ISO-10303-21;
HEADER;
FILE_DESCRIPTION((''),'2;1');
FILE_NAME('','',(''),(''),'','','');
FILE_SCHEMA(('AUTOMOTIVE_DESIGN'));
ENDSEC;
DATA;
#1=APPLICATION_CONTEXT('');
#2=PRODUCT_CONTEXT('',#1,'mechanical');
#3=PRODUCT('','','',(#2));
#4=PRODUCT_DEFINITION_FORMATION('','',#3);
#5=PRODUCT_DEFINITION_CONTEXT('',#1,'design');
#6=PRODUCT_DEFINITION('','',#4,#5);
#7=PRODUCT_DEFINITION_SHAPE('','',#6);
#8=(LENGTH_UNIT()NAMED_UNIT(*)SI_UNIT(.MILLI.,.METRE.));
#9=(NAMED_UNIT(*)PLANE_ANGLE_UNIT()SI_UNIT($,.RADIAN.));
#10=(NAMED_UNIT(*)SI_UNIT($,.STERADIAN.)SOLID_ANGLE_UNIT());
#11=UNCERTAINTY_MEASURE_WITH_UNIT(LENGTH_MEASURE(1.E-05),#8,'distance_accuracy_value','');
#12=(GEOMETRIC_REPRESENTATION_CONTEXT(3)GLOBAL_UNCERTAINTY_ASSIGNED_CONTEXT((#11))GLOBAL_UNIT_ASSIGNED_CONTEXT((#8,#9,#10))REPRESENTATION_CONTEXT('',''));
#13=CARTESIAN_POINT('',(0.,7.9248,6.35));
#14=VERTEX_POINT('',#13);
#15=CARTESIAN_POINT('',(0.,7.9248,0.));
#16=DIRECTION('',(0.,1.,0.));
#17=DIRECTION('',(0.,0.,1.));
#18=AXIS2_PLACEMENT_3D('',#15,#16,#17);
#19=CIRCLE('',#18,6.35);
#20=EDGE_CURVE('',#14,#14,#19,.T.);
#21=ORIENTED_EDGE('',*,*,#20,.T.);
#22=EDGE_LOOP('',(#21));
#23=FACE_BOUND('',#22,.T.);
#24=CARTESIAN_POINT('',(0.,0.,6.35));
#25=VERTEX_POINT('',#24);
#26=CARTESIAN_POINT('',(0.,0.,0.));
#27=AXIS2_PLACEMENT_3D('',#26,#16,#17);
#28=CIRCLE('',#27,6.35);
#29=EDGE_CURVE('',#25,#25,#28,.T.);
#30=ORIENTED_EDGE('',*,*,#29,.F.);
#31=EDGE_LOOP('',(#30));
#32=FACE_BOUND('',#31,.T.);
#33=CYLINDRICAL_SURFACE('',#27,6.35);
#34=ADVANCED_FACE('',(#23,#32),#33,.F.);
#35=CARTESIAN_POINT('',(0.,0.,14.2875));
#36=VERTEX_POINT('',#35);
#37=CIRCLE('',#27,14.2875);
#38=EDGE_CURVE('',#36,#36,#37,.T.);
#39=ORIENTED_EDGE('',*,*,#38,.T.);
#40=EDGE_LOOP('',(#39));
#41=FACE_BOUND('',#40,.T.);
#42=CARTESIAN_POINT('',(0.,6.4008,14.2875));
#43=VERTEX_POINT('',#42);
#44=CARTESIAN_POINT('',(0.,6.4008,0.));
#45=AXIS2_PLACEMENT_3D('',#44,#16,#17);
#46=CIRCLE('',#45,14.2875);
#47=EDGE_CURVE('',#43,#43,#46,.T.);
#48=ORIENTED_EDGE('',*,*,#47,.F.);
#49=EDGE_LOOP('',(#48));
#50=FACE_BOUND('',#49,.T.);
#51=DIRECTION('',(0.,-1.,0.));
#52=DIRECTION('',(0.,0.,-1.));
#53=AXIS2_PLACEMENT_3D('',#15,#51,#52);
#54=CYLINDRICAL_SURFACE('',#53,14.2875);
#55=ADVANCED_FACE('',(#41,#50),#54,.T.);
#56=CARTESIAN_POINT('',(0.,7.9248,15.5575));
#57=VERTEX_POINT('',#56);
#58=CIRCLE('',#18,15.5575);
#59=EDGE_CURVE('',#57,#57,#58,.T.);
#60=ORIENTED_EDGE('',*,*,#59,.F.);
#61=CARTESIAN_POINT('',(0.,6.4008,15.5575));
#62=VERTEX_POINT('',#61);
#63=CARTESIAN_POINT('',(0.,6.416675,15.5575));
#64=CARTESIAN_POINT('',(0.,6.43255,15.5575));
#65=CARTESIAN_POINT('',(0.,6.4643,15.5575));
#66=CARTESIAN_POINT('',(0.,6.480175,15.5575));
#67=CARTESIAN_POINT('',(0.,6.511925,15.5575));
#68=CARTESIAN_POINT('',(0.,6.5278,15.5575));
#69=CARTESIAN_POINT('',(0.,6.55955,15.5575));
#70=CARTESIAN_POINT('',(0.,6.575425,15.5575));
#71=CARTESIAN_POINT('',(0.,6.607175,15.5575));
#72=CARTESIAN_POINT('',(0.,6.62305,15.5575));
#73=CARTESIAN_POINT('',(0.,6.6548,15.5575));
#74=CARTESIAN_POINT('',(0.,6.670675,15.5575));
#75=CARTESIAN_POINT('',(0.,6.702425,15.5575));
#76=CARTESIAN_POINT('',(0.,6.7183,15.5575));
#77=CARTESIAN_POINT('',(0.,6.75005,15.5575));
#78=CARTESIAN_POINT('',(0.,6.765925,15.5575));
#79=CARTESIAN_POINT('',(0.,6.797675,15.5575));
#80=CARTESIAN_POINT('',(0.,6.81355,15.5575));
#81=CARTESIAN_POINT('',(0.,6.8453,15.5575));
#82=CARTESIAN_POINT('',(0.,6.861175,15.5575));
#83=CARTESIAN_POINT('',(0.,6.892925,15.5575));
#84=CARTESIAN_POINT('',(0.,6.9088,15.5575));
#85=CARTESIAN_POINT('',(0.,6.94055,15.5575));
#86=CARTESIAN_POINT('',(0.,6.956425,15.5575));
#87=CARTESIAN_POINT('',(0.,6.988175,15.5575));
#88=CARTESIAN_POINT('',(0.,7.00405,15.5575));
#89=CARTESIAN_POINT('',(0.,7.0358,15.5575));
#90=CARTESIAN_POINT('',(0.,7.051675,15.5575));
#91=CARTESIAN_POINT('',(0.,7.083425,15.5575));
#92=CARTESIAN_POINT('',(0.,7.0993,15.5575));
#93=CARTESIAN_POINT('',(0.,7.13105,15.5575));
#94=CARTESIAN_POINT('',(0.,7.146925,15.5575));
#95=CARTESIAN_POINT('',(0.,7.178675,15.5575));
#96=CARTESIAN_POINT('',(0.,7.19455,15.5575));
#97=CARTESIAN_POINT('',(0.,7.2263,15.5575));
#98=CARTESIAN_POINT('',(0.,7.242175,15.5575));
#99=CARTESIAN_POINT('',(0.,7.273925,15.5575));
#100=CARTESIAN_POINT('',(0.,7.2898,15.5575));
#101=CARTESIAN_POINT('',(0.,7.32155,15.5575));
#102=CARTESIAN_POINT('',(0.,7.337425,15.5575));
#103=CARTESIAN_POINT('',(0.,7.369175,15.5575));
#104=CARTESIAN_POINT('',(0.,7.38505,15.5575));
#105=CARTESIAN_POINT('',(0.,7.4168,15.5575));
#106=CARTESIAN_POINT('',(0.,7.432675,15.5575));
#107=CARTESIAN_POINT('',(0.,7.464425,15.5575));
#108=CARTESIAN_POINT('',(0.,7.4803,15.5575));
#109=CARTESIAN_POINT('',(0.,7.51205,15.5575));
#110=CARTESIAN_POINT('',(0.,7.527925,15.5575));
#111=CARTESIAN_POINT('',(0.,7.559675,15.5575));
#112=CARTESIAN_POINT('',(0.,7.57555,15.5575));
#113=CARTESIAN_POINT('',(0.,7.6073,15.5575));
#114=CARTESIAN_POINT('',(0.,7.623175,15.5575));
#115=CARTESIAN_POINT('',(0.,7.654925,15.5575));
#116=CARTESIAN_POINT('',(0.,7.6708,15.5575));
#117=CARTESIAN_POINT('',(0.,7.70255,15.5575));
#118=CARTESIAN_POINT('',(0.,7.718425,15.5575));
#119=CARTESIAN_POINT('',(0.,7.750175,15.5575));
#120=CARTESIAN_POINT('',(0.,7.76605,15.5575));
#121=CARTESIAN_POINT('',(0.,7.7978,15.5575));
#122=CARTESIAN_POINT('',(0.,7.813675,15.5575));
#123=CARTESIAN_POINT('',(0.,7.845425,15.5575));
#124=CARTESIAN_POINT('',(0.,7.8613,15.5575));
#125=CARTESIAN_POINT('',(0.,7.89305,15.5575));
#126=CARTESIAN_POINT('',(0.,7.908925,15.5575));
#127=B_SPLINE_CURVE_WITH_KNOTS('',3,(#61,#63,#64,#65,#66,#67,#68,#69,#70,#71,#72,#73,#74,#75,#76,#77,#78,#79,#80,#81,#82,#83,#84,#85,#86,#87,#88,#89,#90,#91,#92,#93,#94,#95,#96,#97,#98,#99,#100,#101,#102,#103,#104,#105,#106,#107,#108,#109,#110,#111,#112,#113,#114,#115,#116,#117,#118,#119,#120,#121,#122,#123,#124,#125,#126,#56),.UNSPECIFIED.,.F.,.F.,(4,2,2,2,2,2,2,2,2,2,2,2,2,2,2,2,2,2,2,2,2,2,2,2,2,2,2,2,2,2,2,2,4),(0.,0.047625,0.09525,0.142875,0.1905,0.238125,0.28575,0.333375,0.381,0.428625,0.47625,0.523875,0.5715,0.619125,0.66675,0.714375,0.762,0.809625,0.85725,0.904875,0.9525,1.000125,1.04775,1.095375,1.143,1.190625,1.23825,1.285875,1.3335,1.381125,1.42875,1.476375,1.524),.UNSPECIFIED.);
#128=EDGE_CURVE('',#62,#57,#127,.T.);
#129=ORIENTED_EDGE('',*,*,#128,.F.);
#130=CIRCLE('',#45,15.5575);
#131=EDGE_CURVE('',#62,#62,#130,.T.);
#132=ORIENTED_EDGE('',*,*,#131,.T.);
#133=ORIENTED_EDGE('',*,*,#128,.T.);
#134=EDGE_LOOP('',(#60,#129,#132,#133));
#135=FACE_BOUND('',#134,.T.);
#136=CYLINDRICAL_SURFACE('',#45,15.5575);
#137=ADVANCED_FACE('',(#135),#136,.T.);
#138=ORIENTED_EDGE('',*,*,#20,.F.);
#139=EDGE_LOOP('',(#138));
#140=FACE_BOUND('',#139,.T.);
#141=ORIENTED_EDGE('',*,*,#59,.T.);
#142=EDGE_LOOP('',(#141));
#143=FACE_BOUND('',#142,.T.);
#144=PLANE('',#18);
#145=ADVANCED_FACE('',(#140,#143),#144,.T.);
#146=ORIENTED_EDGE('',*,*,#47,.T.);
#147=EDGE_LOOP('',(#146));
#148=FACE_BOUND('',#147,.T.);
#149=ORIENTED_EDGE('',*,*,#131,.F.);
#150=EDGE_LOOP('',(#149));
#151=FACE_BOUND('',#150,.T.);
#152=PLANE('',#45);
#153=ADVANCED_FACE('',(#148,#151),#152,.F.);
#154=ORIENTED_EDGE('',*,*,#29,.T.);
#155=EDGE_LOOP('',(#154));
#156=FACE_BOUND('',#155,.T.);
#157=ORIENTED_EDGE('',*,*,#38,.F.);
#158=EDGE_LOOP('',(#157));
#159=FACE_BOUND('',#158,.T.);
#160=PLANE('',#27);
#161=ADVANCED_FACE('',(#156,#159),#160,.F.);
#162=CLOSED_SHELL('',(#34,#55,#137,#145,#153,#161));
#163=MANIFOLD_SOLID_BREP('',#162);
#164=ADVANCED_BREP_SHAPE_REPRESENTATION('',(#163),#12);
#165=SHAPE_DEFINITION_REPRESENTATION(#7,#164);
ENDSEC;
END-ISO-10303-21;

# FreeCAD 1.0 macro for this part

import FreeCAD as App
import Part
import Sketcher

V = App.Vector
Q = App.Units.Quantity

doc = App.newDocument("Part")
params = doc.addObject("Spreadsheet::Sheet", "Params")
for row, (alias, value) in enumerate([
    ("sketch1_diameter", "1.125 in"),
    ("pad1_length", "0.312 in"),
    ("sketch2_diameter", "1.225 in"),
    ("pad2_length", "0.06 in"),
    ("sketch3_diameter", "0.5 in"),
], start=1):
    params.set(f"A{row}", alias)
    params.set(f"B{row}", "=" + value)
    params.setAlias(f"B{row}", alias)

body = doc.addObject("PartDesign::Body", "Body")

# Sketch on XZ plane
sketch1 = body.newObject("Sketcher::SketchObject", "Sketch")
sketch1.AttachmentSupport = (doc.getObject("XZ_Plane"), [""])
sketch1.MapMode = "FlatFace"
sketch1.addGeometry(Part.Circle(V(0, 0, 0), V(0, 0, 1), 14), False)
sketch1.addConstraint([
    Sketcher.Constraint("Coincident", 0, 3, -1, 1),
    Sketcher.Constraint("Diameter", 0, Q("1.125 in")),
])
sketch1.setExpression("Constraints[1]", "Params.sketch1_diameter")
pad1 = body.newObject("PartDesign::Pad", "Pad")
pad1.Profile = sketch1
pad1.setExpression("Length", "Params.pad1_length")
pad1.Reversed = True

# Sketch on XZ plane
sketch2 = body.newObject("Sketcher::SketchObject", "Sketch001")
sketch2.AttachmentSupport = (doc.getObject("XZ_Plane"), [""])
sketch2.MapMode = "FlatFace"
sketch2.AttachmentOffset = App.Placement(V(0, 0, -0.312 * 25.4), App.Rotation())
sketch2.addGeometry(Part.Circle(V(0, 0, 0), V(0, 0, 1), 16), False)
sketch2.addConstraint([
    Sketcher.Constraint("Coincident", 0, 3, -1, 1),
    Sketcher.Constraint("Diameter", 0, Q("1.225 in")),
])
sketch2.setExpression("Constraints[1]", "Params.sketch2_diameter")
pad2 = body.newObject("PartDesign::Pad", "Pad001")
pad2.Profile = sketch2
pad2.setExpression("Length", "Params.pad2_length")

# Sketch on XZ plane
sketch3 = body.newObject("Sketcher::SketchObject", "Sketch002")
sketch3.AttachmentSupport = (doc.getObject("XZ_Plane"), [""])
sketch3.MapMode = "FlatFace"
sketch3.AttachmentOffset = App.Placement(V(0, 0, -0.312 * 25.4), App.Rotation())
sketch3.addGeometry(Part.Circle(V(0, 0, 0), V(0, 0, 1), 6), False)
sketch3.addConstraint([
    Sketcher.Constraint("Coincident", 0, 3, -1, 1),
    Sketcher.Constraint("Diameter", 0, Q("0.5 in")),
])
sketch3.setExpression("Constraints[1]", "Params.sketch3_diameter")
pocket1 = body.newObject("PartDesign::Pocket", "Pocket")
pocket1.Profile = sketch3
pocket1.Type = "ThroughAll"
pocket1.Reversed = True

doc.recompute()
